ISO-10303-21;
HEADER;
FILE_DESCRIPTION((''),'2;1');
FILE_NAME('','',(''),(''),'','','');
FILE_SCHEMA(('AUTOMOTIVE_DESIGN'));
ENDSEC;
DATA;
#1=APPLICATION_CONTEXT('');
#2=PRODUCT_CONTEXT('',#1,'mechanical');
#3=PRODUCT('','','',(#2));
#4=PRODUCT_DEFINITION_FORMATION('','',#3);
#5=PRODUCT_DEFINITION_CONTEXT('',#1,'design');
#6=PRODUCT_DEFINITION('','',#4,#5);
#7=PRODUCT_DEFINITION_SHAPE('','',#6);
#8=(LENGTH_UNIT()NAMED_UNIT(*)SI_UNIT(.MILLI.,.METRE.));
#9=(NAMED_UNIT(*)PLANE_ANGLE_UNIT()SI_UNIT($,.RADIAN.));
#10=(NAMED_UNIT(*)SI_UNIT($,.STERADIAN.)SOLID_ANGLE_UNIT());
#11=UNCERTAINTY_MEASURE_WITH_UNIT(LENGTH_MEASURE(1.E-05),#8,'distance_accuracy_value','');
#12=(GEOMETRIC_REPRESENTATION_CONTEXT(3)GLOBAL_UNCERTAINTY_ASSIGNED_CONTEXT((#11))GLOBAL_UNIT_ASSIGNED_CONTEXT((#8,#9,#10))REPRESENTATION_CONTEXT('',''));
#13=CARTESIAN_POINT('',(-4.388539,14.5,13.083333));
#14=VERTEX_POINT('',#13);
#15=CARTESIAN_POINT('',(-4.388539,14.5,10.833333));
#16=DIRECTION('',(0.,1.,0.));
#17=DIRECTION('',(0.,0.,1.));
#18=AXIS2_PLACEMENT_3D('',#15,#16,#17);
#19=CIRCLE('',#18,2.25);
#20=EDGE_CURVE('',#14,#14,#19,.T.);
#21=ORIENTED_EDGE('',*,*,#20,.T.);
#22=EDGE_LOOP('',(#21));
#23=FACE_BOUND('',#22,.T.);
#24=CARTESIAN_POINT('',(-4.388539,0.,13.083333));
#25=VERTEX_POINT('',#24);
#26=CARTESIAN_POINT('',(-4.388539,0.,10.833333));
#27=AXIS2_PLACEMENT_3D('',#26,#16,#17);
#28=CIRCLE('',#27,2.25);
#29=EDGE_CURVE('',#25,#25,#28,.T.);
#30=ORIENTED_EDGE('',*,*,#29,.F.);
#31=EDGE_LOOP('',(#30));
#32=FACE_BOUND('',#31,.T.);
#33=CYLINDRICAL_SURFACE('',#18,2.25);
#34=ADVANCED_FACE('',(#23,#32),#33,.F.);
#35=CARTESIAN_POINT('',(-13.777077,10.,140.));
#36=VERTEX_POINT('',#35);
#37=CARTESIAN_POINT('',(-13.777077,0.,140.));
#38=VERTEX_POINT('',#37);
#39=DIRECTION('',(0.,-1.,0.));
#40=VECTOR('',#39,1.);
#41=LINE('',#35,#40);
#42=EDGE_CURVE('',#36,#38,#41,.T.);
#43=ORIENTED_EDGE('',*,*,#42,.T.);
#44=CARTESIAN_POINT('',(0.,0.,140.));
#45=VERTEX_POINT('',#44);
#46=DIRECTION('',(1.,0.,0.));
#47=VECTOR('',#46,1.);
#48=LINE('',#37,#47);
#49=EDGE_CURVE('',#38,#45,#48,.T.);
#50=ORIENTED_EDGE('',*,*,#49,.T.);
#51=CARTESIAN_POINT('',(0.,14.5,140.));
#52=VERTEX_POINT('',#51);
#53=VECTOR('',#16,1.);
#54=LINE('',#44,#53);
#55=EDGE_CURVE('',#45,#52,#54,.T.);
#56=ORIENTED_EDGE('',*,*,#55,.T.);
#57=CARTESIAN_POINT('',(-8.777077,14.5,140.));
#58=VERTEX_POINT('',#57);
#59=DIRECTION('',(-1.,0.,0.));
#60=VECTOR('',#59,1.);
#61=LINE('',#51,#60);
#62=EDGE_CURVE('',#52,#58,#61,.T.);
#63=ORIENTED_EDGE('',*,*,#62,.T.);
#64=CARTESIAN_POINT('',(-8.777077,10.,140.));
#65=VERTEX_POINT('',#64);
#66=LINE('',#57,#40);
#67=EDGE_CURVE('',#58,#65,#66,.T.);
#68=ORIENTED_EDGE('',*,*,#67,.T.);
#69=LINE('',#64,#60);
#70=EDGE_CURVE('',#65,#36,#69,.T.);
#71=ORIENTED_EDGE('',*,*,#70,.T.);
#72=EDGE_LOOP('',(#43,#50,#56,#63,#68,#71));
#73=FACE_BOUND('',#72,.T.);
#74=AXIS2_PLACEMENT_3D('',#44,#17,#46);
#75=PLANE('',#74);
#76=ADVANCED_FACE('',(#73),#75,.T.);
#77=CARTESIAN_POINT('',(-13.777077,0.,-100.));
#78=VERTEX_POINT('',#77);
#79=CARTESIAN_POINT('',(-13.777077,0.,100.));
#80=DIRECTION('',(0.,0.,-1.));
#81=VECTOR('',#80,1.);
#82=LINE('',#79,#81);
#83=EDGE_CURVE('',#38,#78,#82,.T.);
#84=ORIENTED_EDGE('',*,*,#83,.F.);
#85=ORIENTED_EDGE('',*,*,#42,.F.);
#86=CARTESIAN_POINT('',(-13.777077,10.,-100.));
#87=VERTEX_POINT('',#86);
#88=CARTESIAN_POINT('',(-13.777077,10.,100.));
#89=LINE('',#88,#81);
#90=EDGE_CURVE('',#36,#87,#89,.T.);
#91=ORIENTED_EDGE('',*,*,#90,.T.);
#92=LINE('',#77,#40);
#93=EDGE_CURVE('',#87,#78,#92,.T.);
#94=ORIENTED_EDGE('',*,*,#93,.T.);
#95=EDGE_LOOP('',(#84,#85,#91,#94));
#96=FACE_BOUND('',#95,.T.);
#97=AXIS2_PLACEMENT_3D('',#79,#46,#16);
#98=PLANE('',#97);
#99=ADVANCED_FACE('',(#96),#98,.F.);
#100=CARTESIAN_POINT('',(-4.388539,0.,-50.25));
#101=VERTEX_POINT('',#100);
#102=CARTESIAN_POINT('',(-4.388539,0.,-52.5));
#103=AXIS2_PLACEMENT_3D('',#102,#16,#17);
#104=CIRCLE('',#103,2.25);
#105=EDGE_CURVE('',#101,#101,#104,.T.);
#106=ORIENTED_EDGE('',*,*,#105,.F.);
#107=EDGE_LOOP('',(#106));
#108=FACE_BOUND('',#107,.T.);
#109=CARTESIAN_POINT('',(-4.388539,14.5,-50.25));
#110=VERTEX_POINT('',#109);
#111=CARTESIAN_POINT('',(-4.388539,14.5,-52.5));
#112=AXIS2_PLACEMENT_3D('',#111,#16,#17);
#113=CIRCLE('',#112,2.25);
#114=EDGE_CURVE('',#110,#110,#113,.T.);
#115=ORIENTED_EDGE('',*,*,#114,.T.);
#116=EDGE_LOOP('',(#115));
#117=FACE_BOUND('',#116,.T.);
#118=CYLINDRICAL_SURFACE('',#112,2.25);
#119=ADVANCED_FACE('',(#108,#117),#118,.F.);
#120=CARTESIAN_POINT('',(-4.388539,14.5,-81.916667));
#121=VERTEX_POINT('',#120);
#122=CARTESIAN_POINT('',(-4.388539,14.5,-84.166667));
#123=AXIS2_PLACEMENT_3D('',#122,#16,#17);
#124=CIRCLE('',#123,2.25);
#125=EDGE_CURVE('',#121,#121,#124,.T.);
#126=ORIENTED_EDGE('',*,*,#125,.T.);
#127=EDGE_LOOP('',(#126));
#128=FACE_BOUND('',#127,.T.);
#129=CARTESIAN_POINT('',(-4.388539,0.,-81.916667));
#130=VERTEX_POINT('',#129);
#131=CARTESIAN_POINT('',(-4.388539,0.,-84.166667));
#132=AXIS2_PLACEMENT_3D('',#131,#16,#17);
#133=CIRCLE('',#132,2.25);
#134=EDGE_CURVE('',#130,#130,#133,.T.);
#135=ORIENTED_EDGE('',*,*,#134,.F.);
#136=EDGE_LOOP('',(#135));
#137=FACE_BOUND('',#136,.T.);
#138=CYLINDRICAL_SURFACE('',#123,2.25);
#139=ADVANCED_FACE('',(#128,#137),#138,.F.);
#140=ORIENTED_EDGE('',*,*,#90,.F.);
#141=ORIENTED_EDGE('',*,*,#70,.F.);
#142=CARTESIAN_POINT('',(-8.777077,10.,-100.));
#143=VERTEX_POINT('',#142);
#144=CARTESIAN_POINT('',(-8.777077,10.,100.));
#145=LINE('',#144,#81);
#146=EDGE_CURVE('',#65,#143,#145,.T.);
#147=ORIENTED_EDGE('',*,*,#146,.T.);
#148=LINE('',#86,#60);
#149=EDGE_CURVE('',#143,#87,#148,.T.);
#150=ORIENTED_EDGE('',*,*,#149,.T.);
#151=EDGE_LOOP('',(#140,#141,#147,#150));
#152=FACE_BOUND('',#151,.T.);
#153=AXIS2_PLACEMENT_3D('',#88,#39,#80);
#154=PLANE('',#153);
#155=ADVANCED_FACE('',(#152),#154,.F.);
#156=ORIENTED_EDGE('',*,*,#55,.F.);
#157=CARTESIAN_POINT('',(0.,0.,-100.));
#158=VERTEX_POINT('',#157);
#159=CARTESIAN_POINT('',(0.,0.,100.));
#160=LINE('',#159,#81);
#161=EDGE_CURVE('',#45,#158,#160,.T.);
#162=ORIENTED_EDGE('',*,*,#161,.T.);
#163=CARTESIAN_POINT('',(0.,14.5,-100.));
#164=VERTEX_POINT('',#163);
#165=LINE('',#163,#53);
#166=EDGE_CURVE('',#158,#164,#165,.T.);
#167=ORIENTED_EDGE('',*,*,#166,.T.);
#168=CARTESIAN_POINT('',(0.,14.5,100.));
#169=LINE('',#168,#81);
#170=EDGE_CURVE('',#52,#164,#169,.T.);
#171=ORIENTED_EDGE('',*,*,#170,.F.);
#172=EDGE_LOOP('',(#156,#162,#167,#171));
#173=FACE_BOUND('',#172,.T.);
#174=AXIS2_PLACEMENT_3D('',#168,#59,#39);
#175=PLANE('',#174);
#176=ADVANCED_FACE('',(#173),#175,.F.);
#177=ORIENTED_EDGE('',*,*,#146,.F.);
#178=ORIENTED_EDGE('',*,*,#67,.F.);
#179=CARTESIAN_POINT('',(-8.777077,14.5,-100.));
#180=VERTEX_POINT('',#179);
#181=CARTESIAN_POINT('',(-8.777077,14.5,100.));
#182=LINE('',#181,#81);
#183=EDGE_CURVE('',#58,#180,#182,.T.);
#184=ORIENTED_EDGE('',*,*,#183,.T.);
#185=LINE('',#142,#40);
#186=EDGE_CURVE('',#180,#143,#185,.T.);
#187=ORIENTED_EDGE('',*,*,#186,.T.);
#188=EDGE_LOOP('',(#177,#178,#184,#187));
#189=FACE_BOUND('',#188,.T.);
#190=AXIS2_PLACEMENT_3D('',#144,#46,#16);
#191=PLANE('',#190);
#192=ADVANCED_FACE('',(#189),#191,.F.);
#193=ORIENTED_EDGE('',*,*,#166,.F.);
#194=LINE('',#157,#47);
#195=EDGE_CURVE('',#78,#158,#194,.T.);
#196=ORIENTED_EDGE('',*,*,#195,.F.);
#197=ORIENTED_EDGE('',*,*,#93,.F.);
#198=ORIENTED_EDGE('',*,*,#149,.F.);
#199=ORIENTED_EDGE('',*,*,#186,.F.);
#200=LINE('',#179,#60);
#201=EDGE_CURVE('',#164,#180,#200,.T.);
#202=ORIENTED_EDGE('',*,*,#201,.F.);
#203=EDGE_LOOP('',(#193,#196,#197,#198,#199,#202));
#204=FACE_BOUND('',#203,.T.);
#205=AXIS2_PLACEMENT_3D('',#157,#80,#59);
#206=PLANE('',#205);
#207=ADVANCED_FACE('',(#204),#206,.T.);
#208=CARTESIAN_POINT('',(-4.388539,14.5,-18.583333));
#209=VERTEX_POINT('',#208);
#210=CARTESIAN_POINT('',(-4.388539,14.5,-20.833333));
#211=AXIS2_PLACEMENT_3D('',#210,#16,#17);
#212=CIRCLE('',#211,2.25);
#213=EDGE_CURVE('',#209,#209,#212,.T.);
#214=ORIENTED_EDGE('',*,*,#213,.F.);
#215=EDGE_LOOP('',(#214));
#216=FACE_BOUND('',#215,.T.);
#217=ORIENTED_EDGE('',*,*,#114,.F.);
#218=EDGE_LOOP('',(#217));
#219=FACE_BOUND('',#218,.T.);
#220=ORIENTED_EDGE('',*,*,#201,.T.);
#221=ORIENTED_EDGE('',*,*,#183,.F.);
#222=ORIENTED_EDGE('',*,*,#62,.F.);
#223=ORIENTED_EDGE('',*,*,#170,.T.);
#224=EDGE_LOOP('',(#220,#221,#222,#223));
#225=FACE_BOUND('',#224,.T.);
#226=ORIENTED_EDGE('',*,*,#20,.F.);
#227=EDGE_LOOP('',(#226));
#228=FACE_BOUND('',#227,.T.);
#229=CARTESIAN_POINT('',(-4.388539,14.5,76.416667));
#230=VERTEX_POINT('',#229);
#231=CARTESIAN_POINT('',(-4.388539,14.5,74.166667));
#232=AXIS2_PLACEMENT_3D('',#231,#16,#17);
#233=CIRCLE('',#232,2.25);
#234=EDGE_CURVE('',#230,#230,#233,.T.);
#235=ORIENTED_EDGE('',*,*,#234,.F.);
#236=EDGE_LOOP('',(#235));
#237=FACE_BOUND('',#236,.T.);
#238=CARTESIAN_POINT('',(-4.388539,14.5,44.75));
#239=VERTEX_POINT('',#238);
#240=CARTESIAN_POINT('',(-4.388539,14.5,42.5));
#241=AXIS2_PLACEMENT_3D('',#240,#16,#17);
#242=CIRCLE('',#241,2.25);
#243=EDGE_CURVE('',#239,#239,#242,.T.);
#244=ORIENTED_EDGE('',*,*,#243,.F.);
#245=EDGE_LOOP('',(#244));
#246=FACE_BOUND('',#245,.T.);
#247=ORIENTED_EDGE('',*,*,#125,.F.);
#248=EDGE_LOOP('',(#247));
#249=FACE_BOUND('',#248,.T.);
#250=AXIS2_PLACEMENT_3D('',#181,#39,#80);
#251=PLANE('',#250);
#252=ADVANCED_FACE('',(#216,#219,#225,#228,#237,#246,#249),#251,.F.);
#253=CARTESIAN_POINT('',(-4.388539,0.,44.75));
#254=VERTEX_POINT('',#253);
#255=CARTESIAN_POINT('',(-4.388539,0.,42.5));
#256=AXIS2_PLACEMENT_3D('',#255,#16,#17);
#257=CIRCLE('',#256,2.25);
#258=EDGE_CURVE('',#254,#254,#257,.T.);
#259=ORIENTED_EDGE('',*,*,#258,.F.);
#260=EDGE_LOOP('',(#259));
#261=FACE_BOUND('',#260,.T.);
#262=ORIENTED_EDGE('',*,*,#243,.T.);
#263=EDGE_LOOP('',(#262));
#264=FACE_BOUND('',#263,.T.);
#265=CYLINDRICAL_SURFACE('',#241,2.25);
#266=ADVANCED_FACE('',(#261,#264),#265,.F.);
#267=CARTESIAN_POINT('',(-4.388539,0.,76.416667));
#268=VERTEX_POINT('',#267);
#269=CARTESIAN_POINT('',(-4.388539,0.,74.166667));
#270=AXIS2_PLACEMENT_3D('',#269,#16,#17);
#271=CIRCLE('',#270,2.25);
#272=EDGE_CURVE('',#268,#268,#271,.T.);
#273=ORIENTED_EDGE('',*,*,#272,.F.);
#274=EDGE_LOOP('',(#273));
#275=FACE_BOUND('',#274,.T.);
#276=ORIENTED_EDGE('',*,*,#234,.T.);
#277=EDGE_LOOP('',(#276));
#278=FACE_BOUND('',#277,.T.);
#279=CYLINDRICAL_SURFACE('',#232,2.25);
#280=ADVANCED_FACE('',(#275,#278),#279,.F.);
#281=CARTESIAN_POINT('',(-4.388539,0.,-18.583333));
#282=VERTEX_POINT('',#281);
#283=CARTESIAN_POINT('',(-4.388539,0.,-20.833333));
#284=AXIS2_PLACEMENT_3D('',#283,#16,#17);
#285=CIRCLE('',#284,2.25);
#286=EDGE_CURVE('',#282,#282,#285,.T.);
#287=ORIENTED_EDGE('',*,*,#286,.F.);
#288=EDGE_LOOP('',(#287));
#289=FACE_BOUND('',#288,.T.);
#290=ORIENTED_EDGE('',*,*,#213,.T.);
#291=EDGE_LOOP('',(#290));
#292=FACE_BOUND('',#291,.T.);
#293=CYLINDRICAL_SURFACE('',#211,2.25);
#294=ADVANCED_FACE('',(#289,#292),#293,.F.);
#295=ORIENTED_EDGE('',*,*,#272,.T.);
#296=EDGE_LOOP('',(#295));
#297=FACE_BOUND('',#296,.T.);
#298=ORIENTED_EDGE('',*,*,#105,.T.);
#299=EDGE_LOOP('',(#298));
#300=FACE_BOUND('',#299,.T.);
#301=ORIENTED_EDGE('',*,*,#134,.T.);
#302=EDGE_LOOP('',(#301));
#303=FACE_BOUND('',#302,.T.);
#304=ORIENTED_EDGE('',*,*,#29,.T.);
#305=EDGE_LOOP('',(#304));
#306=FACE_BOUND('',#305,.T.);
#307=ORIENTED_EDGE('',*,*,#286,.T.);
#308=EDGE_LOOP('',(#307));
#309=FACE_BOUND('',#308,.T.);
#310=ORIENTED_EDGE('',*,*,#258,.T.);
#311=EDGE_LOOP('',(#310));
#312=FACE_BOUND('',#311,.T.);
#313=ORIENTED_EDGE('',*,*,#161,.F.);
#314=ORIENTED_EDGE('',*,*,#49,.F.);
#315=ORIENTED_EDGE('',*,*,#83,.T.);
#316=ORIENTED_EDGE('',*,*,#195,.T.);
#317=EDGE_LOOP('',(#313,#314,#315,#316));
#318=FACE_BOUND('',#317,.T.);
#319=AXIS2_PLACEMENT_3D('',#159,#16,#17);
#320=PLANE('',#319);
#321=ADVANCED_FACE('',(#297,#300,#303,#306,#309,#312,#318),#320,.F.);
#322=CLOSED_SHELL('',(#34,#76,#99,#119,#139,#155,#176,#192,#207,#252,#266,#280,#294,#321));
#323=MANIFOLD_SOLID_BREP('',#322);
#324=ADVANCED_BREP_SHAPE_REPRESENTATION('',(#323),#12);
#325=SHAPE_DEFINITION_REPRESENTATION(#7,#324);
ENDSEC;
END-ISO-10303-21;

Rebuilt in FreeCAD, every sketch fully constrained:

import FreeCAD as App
import Part
import Sketcher


def add_polygon(sketch, points):
    """Adds a closed chain of lines whose ends are joined by coincident constraints."""
    first, n = sketch.GeometryCount, len(points)
    for a, b in zip(points, points[1:] + points[:1]):
        sketch.addGeometry(Part.LineSegment(App.Vector(*a, 0), App.Vector(*b, 0)), False)
    for i in range(n):
        sketch.addConstraint(Sketcher.Constraint("Coincident", first + i, 2, first + (i + 1) % n, 1))

doc = App.newDocument("Part")
body = doc.addObject("PartDesign::Body", "Body")

# Sketch on XY plane
sketch1 = body.newObject("Sketcher::SketchObject", "Sketch")
sketch1.AttachmentSupport = (doc.getObject("XY_Plane"), [""])
sketch1.MapMode = "FlatFace"
add_polygon(sketch1, [(-8.777077, 10), (-13.777077, 10), (-13.777077, 0), (0, 0), (0, 14.5), (-8.777077, 14.5)])  # lines 0-5
sketch1.addConstraint([
    Sketcher.Constraint("Horizontal", 0),
    Sketcher.Constraint("Vertical", 1),
    Sketcher.Constraint("Horizontal", 2),
    Sketcher.Constraint("Vertical", 3),
    Sketcher.Constraint("Horizontal", 4),
    Sketcher.Constraint("Vertical", 5),
    Sketcher.Constraint("Coincident", 2, 2, -1, 1),
    Sketcher.Constraint("DistanceX", 0, 2, 0, 1, 5.0),
    Sketcher.Constraint("DistanceY", 1, 2, 1, 1, 10.0),
    Sketcher.Constraint("DistanceY", 3, 1, 3, 2, 14.5),
    Sketcher.Constraint("DistanceX", 2, 1, 2, 2, 13.777077),
])
pad1 = body.newObject("PartDesign::Pad", "Pad")
pad1.Profile = sketch1
pad1.Length = 200
pad1.Midplane = True

# Sketch on XZ plane
sketch2 = body.newObject("Sketcher::SketchObject", "Sketch001")
sketch2.AttachmentSupport = (doc.getObject("XZ_Plane"), [""])
sketch2.MapMode = "FlatFace"
sketch2.AttachmentOffset = App.Placement(App.Vector(0, 0, -14.5), App.Rotation())
sketch2.addGeometry([
    Part.Circle(App.Vector(-4.388539, 74.166667, 0), App.Vector(0, 0, 1), 2.25),  # 0
    Part.Circle(App.Vector(-4.388539, -84.166667, 0), App.Vector(0, 0, 1), 2.25),  # 1
    Part.Circle(App.Vector(-4.388539, -52.5, 0), App.Vector(0, 0, 1), 2.25),  # 2
    Part.Circle(App.Vector(-4.388539, -20.833333, 0), App.Vector(0, 0, 1), 2.25),  # 3
    Part.Circle(App.Vector(-4.388539, 10.833333, 0), App.Vector(0, 0, 1), 2.25),  # 4
    Part.Circle(App.Vector(-4.388539, 42.5, 0), App.Vector(0, 0, 1), 2.25),  # 5
], False)
sketch2.addConstraint([
    Sketcher.Constraint("Equal", 0, 1),
    Sketcher.Constraint("Equal", 1, 2),
    Sketcher.Constraint("Equal", 2, 3),
    Sketcher.Constraint("Equal", 3, 4),
    Sketcher.Constraint("Equal", 4, 5),
    Sketcher.Constraint("Vertical", 0, 3, 1, 3),
    Sketcher.Constraint("Vertical", 1, 3, 2, 3),
    Sketcher.Constraint("Vertical", 2, 3, 3, 3),
    Sketcher.Constraint("Vertical", 3, 3, 4, 3),
    Sketcher.Constraint("Vertical", 4, 3, 5, 3),
    Sketcher.Constraint("Diameter", 0, 4.5),
    Sketcher.Constraint("DistanceY", 3, 3, 0, 3, 95.0),
    Sketcher.Constraint("DistanceY", 1, 3, 4, 3, 95.0),
    Sketcher.Constraint("DistanceY", 2, 3, 5, 3, 95.0),
    Sketcher.Constraint("DistanceY", 2, 3, -1, 1, 52.5),
    Sketcher.Constraint("DistanceX", 0, 3, -1, 1, 4.388539),
    Sketcher.Constraint("DistanceY", -1, 1, 0, 3, 74.166667),
    Sketcher.Constraint("DistanceY", 1, 3, -1, 1, 84.166667),
])
doc.recompute()
hole = body.newObject("PartDesign::Hole", "Hole")
hole.Profile = sketch2
hole.ThreadType = "None"
hole.Diameter = 4.5
hole.DepthType = "ThroughAll"
hole.Reversed = True

# Sketch on XY plane
sketch3 = body.newObject("Sketcher::SketchObject", "Sketch002")
sketch3.AttachmentSupport = (doc.getObject("XY_Plane"), [""])
sketch3.MapMode = "FlatFace"
sketch3.AttachmentOffset = App.Placement(App.Vector(0, 0, 100), App.Rotation())
add_polygon(sketch3, [(-13.777077, 10), (-13.777077, 0), (0, 0), (0, 14.5), (-8.777077, 14.5), (-8.777077, 10)])  # lines 0-5
sketch3.addConstraint([
    Sketcher.Constraint("Vertical", 0),
    Sketcher.Constraint("Horizontal", 1),
    Sketcher.Constraint("Vertical", 2),
    Sketcher.Constraint("Horizontal", 3),
    Sketcher.Constraint("Vertical", 4),
    Sketcher.Constraint("Horizontal", 5),
    Sketcher.Constraint("Coincident", 1, 2, -1, 1),
    Sketcher.Constraint("DistanceX", 5, 2, 5, 1, 5.0),
    Sketcher.Constraint("DistanceY", 0, 2, 0, 1, 10.0),
    Sketcher.Constraint("DistanceY", 2, 1, 2, 2, 14.5),
    Sketcher.Constraint("DistanceX", 1, 1, 1, 2, 13.777077),
])
pad2 = body.newObject("PartDesign::Pad", "Pad001")
pad2.Profile = sketch3
pad2.Length = 40

doc.recompute()
